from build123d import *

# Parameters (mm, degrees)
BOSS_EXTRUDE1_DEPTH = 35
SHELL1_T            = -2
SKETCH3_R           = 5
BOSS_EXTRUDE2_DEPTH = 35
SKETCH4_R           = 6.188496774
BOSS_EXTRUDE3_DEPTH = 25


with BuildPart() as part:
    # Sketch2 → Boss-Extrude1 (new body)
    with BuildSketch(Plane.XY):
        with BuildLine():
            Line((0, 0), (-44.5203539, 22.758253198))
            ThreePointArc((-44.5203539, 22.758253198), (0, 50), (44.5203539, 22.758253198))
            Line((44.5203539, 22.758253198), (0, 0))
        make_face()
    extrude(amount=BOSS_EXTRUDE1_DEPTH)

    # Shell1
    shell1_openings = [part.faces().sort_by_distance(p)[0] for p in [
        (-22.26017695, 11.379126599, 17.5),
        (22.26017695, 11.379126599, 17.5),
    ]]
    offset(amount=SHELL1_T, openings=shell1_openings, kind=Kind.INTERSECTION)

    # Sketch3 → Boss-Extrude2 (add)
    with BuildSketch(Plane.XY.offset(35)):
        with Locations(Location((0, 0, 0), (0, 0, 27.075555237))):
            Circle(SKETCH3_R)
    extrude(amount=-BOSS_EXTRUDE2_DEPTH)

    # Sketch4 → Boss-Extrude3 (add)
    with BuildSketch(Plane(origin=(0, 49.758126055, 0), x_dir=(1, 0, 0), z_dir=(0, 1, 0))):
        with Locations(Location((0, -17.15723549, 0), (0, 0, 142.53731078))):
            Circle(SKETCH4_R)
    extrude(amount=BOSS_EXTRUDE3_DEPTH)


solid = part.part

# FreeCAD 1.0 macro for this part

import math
import FreeCAD as App
import Part
import Sketcher

V = App.Vector
Q = App.Units.Quantity


def faces_at(feature, points):
    """Names of the faces that lie closest to the given points."""
    faces = feature.Shape.Faces
    near = lambda p: min(range(len(faces)), key=lambda i: faces[i].distToShape(Part.Vertex(*p))[0])
    return sorted({f"Face{near(p) + 1}" for p in points})

doc = App.newDocument("Part")
body = doc.addObject("PartDesign::Body", "Body")

sketch1 = doc.addObject("Sketcher::SketchObject", "Sketch")
body.addObject(sketch1)
sketch1.AttachmentSupport = (doc.XY_Plane, [""])
sketch1.MapMode = "FlatFace"
sketch1.addGeometry(Part.LineSegment(V(-45, 23, 0), V(0, 0, 0)), False)
sketch1.addGeometry(Part.LineSegment(V(0, 0, 0), V(45, 23, 0)), False)
sketch1.addGeometry(Part.ArcOfCircle(Part.Circle(V(0, 0, 0), V(0, 0, 1), 50), math.radians(27), math.radians(153)), False)
sketch1.addConstraint(Sketcher.Constraint("Coincident", 0, 2, 1, 1))
sketch1.addConstraint(Sketcher.Constraint("Coincident", 1, 2, 2, 1))
sketch1.addConstraint(Sketcher.Constraint("Coincident", 2, 2, 0, 1))
sketch1.addConstraint(Sketcher.Constraint("Coincident", 2, 3, -1, 1))
sketch1.addConstraint(Sketcher.Constraint("Coincident", 0, 2, -1, 1))
sketch1.addConstraint(Sketcher.Constraint("Horizontal", 1, 2, 2, 2))
sketch1.addConstraint(Sketcher.Constraint("Radius", 2, Q("50 mm")))
sketch1.addConstraint(Sketcher.Constraint("DistanceX", -1, 1, 1, 2, Q("44.520354 mm")))
pad1 = doc.addObject("PartDesign::Pad", "Pad")
body.addObject(pad1)
pad1.Profile = sketch1
pad1.Length = 35
doc.recompute()

thickness = doc.addObject("PartDesign::Thickness", "Thickness")
body.addObject(thickness)
thickness.Base = (pad1, faces_at(pad1, [(-22.26, 11.379, 17.5), (22.26, 11.379, 17.5)]))
thickness.Value = 2
thickness.Reversed = True
thickness.Join = "Intersection"

sketch2 = doc.addObject("Sketcher::SketchObject", "Sketch001")
body.addObject(sketch2)
sketch2.AttachmentSupport = (doc.XY_Plane, [""])
sketch2.MapMode = "FlatFace"
sketch2.AttachmentOffset = App.Placement(V(0, 0, 35), App.Rotation())
sketch2.addGeometry(Part.Circle(V(0, 0, 0), V(0, 0, 1), 5), False)
sketch2.addConstraint(Sketcher.Constraint("Coincident", 0, 3, -1, 1))
sketch2.addConstraint(Sketcher.Constraint("Diameter", 0, Q("10 mm")))
pad2 = doc.addObject("PartDesign::Pad", "Pad001")
body.addObject(pad2)
pad2.Profile = sketch2
pad2.Length = 35
pad2.Reversed = True

sketch3 = doc.addObject("Sketcher::SketchObject", "Sketch002")
body.addObject(sketch3)
sketch3.AttachmentSupport = (doc.XZ_Plane, [""])
sketch3.MapMode = "FlatFace"
sketch3.AttachmentOffset = App.Placement(V(0, 0, -49.758126), App.Rotation())
sketch3.addGeometry(Part.Circle(V(0, 17, 0), V(0, 0, 1), 6), False)
sketch3.addConstraint(Sketcher.Constraint("PointOnObject", 0, 3, -2))
sketch3.addConstraint(Sketcher.Constraint("Diameter", 0, Q("12.376994 mm")))
sketch3.addConstraint(Sketcher.Constraint("DistanceY", -1, 1, 0, 3, Q("17.157235 mm")))
pad3 = doc.addObject("PartDesign::Pad", "Pad002")
body.addObject(pad3)
pad3.Profile = sketch3
pad3.Length = 25
pad3.Reversed = True

doc.recompute()
